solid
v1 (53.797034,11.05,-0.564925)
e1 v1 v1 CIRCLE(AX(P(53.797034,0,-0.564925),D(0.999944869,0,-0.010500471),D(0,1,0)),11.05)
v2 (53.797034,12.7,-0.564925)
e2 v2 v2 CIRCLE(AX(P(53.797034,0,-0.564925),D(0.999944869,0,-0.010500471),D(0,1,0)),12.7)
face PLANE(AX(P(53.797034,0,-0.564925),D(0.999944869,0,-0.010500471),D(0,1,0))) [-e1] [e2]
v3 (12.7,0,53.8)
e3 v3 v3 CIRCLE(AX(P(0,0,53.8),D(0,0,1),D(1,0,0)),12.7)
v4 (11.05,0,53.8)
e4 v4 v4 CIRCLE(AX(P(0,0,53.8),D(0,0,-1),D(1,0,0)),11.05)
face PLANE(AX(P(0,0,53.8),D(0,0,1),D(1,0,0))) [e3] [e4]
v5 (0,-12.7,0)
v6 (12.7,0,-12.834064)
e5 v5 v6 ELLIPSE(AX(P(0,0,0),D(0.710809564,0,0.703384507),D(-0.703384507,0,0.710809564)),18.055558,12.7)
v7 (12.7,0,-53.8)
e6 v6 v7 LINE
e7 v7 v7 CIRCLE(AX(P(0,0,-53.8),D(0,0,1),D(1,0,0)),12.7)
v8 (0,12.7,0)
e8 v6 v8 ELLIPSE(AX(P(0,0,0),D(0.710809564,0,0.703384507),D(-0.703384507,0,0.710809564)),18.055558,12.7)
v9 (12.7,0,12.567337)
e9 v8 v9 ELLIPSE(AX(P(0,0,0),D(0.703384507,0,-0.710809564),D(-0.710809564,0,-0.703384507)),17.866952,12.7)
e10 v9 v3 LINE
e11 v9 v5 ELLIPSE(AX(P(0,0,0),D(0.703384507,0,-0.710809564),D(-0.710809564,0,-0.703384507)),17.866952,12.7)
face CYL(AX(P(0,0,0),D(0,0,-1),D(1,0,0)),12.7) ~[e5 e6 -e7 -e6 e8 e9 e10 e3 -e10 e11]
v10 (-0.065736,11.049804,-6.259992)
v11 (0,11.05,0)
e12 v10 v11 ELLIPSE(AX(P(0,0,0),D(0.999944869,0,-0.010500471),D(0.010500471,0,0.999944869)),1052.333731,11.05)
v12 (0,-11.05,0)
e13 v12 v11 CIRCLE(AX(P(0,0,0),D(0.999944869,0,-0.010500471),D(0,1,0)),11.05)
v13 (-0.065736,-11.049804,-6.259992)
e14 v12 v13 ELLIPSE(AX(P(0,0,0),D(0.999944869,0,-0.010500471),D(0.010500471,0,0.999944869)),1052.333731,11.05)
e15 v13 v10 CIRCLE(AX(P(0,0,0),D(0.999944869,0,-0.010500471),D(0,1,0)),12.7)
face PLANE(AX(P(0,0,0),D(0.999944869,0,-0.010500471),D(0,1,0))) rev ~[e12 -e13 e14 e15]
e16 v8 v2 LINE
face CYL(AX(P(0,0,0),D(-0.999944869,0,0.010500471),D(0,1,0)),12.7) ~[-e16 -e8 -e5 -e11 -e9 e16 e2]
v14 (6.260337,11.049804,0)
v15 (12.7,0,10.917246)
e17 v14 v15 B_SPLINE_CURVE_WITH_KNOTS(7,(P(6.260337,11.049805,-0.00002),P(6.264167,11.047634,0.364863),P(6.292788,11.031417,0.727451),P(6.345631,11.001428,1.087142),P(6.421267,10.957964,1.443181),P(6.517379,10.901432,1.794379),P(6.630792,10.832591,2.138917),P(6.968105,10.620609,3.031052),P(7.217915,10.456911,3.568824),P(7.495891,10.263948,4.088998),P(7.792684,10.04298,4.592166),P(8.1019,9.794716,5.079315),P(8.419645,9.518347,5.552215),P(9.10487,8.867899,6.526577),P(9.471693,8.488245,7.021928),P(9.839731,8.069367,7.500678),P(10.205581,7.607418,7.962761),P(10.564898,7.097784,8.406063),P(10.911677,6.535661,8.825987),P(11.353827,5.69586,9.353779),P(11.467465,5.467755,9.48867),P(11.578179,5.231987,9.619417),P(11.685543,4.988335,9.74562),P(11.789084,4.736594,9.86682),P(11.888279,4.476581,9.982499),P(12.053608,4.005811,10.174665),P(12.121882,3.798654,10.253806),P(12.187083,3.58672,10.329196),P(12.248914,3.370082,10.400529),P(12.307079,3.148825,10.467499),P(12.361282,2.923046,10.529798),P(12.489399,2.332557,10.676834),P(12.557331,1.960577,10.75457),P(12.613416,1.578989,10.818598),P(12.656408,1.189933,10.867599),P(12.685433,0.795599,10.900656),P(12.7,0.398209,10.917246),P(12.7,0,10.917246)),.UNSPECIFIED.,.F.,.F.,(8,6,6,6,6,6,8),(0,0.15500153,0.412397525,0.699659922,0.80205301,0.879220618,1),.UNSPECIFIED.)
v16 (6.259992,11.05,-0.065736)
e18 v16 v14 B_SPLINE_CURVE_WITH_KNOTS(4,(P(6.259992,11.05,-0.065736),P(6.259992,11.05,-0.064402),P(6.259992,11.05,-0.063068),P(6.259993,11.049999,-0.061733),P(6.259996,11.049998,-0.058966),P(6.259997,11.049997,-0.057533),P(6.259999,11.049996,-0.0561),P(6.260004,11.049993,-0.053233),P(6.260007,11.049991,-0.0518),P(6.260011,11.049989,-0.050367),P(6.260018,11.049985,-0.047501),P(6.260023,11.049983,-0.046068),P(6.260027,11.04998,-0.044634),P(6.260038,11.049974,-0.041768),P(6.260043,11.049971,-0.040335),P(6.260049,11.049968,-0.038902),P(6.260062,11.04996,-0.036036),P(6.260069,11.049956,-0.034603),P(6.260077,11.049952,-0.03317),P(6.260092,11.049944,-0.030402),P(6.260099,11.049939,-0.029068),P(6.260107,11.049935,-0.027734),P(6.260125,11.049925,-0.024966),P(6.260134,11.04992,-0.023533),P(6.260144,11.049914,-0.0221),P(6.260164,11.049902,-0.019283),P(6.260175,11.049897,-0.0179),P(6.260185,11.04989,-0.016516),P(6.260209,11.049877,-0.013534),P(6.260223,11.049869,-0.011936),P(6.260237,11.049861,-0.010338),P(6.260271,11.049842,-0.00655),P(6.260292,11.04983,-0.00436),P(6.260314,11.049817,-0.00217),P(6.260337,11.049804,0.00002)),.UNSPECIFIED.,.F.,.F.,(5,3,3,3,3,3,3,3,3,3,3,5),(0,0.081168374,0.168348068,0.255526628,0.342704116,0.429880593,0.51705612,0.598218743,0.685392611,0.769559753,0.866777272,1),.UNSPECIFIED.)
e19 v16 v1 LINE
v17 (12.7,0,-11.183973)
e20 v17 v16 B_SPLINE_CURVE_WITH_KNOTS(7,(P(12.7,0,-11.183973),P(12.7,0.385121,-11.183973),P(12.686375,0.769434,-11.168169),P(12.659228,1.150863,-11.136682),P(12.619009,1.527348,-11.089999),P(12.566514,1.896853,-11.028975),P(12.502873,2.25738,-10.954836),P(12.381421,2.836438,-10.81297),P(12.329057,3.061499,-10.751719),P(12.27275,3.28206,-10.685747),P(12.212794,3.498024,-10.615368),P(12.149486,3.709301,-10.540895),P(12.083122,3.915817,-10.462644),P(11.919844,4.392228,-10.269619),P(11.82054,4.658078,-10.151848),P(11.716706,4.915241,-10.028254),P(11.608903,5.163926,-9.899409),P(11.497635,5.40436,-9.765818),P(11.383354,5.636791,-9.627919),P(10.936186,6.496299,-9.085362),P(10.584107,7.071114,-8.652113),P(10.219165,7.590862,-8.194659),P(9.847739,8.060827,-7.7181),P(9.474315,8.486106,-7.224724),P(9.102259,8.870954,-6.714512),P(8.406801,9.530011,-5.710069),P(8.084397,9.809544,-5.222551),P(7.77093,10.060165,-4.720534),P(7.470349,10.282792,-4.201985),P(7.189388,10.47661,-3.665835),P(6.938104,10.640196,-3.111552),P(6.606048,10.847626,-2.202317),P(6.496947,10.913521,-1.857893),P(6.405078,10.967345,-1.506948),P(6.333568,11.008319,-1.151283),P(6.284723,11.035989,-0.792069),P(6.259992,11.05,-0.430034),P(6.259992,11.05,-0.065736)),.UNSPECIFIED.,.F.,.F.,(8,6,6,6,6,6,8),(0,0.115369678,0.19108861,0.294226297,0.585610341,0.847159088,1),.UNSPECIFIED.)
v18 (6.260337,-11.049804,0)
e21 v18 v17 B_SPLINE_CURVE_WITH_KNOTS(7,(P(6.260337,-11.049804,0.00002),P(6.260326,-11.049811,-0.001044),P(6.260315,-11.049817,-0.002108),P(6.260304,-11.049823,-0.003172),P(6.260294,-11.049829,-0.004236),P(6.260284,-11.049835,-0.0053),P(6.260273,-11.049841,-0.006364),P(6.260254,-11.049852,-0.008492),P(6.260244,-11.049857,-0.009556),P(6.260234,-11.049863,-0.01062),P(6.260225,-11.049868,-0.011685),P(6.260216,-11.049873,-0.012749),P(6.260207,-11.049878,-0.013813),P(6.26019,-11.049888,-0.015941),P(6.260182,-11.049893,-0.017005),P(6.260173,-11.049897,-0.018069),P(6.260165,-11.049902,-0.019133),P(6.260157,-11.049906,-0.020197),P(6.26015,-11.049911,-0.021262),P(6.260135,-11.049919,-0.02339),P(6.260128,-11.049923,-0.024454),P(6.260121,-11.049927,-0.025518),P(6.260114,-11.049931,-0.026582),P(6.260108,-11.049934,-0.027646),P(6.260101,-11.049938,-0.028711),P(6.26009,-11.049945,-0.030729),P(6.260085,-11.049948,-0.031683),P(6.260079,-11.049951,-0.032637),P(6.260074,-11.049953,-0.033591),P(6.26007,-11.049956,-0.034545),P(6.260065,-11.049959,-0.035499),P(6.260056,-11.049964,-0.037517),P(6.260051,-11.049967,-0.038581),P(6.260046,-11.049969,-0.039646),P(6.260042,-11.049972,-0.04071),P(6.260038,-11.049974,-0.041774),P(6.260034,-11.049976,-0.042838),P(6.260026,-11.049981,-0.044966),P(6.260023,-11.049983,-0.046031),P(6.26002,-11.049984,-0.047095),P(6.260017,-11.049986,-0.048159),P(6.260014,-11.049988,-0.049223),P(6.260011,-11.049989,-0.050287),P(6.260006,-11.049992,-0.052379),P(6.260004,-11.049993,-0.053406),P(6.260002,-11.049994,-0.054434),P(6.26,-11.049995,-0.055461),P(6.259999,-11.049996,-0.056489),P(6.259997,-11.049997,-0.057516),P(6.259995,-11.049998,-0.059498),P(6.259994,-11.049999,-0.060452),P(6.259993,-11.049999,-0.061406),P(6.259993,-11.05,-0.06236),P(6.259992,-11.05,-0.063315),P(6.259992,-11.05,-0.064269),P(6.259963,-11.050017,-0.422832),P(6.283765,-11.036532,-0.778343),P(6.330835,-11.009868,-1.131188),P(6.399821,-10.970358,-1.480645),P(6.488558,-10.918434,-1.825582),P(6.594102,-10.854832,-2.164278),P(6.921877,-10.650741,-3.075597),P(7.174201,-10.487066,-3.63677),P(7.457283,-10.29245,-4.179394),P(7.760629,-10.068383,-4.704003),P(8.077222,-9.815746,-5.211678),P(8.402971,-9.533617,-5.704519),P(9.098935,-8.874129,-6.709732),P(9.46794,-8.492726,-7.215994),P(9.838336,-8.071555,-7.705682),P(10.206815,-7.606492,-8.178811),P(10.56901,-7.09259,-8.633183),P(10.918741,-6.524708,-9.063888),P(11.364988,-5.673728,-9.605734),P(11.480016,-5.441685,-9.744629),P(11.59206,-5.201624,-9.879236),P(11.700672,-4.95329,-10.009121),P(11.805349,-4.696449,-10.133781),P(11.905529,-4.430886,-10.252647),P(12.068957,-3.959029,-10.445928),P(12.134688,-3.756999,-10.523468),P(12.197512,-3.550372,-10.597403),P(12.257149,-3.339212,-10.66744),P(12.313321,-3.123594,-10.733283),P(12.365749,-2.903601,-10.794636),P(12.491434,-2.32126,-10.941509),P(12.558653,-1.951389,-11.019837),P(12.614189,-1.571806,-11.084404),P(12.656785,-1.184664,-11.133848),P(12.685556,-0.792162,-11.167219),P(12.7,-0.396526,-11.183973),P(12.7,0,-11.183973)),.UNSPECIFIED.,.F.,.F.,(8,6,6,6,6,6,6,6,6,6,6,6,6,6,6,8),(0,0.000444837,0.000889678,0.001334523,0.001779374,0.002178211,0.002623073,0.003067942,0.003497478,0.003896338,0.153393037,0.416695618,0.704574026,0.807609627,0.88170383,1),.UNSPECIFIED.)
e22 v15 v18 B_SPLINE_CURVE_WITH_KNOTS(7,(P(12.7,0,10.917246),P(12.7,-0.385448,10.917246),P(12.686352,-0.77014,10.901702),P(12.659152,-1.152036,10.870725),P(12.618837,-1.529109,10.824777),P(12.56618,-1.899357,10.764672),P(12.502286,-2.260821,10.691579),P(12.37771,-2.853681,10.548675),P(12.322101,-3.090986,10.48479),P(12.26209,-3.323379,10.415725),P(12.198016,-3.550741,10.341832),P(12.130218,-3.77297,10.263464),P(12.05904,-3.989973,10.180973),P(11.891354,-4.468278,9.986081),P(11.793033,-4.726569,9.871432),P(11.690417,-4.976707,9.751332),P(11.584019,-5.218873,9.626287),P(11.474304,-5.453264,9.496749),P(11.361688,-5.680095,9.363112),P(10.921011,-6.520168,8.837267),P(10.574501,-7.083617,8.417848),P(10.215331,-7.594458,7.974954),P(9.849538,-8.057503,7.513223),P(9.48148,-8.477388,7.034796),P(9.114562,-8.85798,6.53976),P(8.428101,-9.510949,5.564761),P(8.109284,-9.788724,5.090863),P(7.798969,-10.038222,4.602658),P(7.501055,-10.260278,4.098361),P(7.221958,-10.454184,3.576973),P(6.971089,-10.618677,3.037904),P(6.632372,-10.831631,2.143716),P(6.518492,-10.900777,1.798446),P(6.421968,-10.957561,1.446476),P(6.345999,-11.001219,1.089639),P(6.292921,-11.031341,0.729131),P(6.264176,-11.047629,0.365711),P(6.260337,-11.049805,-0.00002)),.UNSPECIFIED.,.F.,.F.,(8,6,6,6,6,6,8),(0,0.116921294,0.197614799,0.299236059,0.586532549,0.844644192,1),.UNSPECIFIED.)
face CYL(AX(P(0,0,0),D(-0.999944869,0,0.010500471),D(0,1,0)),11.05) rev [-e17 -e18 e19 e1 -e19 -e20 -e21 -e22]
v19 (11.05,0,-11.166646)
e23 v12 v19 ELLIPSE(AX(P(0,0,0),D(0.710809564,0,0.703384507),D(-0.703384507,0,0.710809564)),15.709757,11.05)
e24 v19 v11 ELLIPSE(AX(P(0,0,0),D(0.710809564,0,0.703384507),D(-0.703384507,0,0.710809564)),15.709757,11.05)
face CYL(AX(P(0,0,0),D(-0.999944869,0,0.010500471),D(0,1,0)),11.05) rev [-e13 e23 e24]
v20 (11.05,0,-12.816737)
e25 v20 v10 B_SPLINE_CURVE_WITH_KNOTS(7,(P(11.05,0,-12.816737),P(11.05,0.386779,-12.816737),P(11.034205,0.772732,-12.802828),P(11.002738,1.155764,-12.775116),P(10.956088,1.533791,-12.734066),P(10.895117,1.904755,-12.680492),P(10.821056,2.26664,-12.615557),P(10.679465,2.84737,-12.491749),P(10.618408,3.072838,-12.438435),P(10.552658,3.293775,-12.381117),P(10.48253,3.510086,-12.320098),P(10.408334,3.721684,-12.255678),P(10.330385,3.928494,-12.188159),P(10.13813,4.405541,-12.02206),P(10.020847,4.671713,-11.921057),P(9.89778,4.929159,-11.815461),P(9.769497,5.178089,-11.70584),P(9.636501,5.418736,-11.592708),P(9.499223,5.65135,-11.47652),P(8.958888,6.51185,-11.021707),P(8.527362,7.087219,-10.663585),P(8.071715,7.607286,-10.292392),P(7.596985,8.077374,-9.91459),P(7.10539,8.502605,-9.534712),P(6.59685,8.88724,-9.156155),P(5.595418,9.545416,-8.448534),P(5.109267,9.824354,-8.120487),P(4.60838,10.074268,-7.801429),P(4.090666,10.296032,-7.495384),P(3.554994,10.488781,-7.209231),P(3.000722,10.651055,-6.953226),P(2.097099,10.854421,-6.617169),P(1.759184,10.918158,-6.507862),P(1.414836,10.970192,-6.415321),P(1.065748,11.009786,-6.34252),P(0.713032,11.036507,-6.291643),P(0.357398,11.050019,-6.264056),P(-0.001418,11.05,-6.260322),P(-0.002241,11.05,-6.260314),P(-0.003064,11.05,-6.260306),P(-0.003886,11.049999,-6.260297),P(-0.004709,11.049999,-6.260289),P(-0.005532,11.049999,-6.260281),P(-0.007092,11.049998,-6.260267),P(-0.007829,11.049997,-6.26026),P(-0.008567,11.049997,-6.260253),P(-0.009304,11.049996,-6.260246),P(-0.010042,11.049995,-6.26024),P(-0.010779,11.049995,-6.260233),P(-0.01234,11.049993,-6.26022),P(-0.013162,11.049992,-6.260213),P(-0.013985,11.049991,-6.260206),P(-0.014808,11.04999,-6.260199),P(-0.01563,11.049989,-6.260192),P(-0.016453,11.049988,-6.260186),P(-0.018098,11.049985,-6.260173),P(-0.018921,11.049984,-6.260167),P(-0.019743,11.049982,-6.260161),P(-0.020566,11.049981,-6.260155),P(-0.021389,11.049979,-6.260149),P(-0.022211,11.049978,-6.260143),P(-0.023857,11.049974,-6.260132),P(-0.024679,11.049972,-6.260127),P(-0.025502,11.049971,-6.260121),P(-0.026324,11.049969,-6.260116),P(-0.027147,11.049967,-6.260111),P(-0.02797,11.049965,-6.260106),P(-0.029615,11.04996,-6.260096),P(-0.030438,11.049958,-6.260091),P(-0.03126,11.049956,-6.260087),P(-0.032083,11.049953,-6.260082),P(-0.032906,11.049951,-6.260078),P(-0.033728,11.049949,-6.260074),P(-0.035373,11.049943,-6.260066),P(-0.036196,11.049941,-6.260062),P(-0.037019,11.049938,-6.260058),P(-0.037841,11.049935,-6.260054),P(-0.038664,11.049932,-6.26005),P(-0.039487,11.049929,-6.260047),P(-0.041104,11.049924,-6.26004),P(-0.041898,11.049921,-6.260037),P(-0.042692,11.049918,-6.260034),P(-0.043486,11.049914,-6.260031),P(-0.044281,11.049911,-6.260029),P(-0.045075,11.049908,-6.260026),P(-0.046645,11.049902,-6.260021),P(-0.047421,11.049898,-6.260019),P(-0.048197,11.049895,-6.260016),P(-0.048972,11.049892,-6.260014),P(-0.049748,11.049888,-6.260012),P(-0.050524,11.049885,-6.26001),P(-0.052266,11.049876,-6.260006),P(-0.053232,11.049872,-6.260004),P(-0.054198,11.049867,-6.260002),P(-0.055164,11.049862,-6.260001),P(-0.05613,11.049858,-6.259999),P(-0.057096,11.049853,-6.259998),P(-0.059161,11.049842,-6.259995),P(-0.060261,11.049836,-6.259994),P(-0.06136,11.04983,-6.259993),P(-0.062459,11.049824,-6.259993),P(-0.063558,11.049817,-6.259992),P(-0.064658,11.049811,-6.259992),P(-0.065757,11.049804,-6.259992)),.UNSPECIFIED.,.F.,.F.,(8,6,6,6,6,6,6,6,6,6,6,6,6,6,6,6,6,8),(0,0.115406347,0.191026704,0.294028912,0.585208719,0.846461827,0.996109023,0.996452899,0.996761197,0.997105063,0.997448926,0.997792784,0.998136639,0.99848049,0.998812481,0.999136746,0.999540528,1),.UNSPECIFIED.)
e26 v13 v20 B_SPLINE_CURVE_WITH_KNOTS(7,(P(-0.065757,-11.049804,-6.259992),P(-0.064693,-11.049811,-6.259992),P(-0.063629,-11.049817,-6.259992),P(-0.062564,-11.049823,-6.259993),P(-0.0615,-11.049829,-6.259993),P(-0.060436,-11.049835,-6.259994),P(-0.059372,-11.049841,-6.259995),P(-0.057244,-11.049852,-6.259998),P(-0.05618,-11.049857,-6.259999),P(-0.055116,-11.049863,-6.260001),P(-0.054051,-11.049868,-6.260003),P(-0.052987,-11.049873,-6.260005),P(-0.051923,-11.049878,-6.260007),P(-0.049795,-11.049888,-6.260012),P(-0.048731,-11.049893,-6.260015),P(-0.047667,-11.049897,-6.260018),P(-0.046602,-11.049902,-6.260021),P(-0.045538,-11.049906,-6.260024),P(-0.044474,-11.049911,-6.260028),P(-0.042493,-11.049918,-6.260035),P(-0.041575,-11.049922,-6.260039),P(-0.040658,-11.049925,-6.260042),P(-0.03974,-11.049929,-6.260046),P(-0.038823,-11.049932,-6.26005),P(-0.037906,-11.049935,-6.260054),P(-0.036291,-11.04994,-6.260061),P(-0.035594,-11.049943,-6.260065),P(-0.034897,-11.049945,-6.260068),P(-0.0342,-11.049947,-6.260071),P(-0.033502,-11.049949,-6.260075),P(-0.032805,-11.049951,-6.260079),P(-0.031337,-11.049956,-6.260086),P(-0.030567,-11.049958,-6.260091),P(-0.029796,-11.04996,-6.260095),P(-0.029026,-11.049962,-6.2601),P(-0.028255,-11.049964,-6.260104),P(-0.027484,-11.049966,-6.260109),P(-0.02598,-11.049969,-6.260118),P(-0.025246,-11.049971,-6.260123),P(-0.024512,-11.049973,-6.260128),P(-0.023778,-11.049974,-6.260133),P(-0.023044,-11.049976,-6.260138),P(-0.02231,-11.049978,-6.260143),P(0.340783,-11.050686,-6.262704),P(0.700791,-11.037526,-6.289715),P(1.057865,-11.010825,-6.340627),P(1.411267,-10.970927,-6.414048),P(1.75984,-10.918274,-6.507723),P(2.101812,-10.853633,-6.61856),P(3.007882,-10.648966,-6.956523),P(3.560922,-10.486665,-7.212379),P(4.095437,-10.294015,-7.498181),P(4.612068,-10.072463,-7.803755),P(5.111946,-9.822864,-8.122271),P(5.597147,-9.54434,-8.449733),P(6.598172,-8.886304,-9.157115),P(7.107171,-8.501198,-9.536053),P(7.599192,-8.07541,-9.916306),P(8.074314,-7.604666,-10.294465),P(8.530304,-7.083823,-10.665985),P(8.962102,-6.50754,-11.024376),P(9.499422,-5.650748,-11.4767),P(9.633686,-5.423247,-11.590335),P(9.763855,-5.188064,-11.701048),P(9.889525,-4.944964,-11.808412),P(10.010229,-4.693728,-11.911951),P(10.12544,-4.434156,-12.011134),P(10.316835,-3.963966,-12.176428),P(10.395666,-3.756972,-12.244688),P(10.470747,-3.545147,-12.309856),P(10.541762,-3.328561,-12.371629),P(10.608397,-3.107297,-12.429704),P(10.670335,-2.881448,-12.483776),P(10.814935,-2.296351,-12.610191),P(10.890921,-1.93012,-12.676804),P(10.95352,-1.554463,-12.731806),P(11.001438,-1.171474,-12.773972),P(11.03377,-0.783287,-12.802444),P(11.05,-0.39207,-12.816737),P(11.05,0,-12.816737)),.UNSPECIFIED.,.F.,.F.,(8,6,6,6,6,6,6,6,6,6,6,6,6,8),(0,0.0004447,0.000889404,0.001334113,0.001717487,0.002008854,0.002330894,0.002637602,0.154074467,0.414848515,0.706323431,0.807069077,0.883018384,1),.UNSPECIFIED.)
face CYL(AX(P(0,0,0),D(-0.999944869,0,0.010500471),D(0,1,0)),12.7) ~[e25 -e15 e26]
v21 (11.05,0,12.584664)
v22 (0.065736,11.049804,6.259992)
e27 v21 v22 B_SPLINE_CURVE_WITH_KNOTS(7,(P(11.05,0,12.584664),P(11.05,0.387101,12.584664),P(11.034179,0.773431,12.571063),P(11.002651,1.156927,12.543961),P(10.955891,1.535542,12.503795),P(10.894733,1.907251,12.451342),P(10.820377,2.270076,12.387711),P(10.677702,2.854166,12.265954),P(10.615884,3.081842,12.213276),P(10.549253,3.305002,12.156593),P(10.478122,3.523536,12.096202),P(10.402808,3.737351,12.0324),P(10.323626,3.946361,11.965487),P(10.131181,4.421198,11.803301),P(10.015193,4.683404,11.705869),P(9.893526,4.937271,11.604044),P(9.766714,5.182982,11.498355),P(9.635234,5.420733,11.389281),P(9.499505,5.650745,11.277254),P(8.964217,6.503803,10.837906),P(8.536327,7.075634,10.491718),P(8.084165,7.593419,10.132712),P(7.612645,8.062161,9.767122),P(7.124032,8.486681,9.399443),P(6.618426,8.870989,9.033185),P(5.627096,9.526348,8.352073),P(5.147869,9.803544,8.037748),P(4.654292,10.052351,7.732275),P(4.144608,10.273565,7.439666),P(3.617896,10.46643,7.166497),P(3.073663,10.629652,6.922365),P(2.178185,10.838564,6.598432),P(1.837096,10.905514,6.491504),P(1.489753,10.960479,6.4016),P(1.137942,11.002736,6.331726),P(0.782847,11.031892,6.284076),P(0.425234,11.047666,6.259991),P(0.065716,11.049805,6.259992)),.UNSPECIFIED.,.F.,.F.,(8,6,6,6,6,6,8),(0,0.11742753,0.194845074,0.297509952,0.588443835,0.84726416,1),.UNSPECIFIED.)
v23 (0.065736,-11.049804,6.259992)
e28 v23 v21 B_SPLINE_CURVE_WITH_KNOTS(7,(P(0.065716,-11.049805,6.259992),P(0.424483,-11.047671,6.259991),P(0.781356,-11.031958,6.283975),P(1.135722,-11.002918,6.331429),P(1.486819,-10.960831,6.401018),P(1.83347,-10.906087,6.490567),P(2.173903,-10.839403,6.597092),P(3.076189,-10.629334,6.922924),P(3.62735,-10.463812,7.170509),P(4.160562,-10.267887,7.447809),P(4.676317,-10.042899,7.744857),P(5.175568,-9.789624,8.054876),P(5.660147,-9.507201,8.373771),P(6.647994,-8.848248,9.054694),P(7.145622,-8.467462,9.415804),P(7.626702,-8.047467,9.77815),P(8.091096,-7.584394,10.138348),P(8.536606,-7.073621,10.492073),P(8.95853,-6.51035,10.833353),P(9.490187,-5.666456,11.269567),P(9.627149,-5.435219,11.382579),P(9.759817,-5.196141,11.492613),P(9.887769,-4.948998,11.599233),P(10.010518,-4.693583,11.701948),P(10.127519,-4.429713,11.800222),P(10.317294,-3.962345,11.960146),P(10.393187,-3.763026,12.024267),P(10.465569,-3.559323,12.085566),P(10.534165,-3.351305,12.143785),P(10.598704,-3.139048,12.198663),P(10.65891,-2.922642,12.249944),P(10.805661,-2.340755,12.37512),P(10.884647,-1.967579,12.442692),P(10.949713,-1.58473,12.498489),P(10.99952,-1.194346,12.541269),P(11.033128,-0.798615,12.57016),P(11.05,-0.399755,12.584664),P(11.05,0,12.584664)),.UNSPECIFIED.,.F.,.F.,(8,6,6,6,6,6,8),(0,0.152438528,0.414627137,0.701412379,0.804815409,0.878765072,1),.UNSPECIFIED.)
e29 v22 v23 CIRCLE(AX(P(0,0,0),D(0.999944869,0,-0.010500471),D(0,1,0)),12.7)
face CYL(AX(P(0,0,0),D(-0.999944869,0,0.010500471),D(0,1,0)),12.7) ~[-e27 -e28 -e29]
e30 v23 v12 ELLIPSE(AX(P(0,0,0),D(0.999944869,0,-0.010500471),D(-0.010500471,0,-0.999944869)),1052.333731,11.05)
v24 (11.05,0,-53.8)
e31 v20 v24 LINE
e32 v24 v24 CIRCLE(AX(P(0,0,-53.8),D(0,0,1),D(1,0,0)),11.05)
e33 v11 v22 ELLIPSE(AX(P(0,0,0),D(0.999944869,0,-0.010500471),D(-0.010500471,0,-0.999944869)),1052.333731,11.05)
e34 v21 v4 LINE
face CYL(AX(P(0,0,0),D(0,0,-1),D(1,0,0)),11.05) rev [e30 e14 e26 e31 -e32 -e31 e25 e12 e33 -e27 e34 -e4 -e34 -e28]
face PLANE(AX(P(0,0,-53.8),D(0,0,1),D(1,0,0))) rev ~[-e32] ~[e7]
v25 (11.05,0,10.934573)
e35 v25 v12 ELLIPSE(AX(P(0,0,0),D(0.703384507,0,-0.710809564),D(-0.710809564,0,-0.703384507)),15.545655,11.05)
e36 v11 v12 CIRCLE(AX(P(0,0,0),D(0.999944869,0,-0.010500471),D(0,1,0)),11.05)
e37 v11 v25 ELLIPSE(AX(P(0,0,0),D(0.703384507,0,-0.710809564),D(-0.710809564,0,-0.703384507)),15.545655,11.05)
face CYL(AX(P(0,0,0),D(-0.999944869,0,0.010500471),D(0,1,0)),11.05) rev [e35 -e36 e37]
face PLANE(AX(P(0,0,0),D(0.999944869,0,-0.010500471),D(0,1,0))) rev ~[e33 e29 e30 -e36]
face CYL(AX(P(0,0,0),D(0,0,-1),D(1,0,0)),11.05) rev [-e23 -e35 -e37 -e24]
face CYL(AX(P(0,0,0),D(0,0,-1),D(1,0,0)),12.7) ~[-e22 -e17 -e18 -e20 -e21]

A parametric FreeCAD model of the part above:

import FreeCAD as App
import Part
import Sketcher
from FreeCAD import Vector


def faces_at(feature, points):
    """Names of the faces that lie closest to the given points."""
    faces = feature.Shape.Faces
    near = lambda p: min(range(len(faces)), key=lambda i: faces[i].distToShape(Part.Vertex(*p))[0])
    return sorted({f"Face{near(p) + 1}" for p in points})

doc = App.newDocument("Part")
params = doc.addObject("Spreadsheet::Sheet", "Params")
for row, (alias, value) in enumerate([
    ("sketch1_diameter", "25.4 mm"),
    ("pad1_length", "107.6 mm"),
    ("thickness_wall", "1.65 mm"),
    ("sketch2_diameter", "25.4 mm"),
    ("sketch2_diameter2", "22.1 mm"),
    ("pad2_length", "53.8 mm"),
], start=1):
    params.set(f"A{row}", alias)
    params.set(f"B{row}", "=" + value)
    params.setAlias(f"B{row}", alias)

body = doc.addObject("PartDesign::Body", "Body")

# Sketch on XY plane
sketch1 = body.newObject("Sketcher::SketchObject", "Sketch")
sketch1.AttachmentSupport = (doc.getObject("XY_Plane"), [""])
sketch1.MapMode = "FlatFace"
sketch1.addGeometry(Part.Circle(Vector(0, 0, 0), Vector(0, 0, 1), 13), False)
sketch1.addConstraint([
    Sketcher.Constraint("Coincident", 0, 3, -1, 1),
    Sketcher.Constraint("Diameter", 0, 25.4),
])
sketch1.setExpression("Constraints[1]", "Params.sketch1_diameter")
pad1 = body.newObject("PartDesign::Pad", "Pad")
pad1.Profile = sketch1
pad1.setExpression("Length", "Params.pad1_length")
pad1.Midplane = True
doc.recompute()

thickness = body.newObject("PartDesign::Thickness", "Thickness")
thickness.Base = (pad1, faces_at(pad1, [(-3.625, -0.954, 53.8), (-3.625, -0.954, -53.8)]))
thickness.setExpression("Value", "Params.thickness_wall")
thickness.Reversed = True
thickness.Join = "Intersection"

# Sketch on an angled plane
sketch2 = body.newObject("Sketcher::SketchObject", "Sketch001")
sketch2.Placement = App.Placement(Vector(0, 0, 0), App.Rotation(Vector(0, 1, 0), Vector(0.010500471, 0, 0.999944869), Vector(0.999944869, 0, -0.010500471), "ZXY"))
sketch2.addGeometry([
    Part.Circle(Vector(0, 0, 0), Vector(0, 0, 1), 13),
    Part.Circle(Vector(0, 0, 0), Vector(0, 0, 1), 11),
], False)
sketch2.addConstraint([
    Sketcher.Constraint("Coincident", 0, 3, -1, 1),
    Sketcher.Constraint("Coincident", 1, 3, -1, 1),
    Sketcher.Constraint("Diameter", 0, 25.4),
    Sketcher.Constraint("Diameter", 1, 22.1),
])
sketch2.setExpression("Constraints[2]", "Params.sketch2_diameter")
sketch2.setExpression("Constraints[3]", "Params.sketch2_diameter2")
pad2 = body.newObject("PartDesign::Pad", "Pad001")
pad2.Profile = sketch2
pad2.setExpression("Length", "Params.pad2_length")

doc.recompute()
